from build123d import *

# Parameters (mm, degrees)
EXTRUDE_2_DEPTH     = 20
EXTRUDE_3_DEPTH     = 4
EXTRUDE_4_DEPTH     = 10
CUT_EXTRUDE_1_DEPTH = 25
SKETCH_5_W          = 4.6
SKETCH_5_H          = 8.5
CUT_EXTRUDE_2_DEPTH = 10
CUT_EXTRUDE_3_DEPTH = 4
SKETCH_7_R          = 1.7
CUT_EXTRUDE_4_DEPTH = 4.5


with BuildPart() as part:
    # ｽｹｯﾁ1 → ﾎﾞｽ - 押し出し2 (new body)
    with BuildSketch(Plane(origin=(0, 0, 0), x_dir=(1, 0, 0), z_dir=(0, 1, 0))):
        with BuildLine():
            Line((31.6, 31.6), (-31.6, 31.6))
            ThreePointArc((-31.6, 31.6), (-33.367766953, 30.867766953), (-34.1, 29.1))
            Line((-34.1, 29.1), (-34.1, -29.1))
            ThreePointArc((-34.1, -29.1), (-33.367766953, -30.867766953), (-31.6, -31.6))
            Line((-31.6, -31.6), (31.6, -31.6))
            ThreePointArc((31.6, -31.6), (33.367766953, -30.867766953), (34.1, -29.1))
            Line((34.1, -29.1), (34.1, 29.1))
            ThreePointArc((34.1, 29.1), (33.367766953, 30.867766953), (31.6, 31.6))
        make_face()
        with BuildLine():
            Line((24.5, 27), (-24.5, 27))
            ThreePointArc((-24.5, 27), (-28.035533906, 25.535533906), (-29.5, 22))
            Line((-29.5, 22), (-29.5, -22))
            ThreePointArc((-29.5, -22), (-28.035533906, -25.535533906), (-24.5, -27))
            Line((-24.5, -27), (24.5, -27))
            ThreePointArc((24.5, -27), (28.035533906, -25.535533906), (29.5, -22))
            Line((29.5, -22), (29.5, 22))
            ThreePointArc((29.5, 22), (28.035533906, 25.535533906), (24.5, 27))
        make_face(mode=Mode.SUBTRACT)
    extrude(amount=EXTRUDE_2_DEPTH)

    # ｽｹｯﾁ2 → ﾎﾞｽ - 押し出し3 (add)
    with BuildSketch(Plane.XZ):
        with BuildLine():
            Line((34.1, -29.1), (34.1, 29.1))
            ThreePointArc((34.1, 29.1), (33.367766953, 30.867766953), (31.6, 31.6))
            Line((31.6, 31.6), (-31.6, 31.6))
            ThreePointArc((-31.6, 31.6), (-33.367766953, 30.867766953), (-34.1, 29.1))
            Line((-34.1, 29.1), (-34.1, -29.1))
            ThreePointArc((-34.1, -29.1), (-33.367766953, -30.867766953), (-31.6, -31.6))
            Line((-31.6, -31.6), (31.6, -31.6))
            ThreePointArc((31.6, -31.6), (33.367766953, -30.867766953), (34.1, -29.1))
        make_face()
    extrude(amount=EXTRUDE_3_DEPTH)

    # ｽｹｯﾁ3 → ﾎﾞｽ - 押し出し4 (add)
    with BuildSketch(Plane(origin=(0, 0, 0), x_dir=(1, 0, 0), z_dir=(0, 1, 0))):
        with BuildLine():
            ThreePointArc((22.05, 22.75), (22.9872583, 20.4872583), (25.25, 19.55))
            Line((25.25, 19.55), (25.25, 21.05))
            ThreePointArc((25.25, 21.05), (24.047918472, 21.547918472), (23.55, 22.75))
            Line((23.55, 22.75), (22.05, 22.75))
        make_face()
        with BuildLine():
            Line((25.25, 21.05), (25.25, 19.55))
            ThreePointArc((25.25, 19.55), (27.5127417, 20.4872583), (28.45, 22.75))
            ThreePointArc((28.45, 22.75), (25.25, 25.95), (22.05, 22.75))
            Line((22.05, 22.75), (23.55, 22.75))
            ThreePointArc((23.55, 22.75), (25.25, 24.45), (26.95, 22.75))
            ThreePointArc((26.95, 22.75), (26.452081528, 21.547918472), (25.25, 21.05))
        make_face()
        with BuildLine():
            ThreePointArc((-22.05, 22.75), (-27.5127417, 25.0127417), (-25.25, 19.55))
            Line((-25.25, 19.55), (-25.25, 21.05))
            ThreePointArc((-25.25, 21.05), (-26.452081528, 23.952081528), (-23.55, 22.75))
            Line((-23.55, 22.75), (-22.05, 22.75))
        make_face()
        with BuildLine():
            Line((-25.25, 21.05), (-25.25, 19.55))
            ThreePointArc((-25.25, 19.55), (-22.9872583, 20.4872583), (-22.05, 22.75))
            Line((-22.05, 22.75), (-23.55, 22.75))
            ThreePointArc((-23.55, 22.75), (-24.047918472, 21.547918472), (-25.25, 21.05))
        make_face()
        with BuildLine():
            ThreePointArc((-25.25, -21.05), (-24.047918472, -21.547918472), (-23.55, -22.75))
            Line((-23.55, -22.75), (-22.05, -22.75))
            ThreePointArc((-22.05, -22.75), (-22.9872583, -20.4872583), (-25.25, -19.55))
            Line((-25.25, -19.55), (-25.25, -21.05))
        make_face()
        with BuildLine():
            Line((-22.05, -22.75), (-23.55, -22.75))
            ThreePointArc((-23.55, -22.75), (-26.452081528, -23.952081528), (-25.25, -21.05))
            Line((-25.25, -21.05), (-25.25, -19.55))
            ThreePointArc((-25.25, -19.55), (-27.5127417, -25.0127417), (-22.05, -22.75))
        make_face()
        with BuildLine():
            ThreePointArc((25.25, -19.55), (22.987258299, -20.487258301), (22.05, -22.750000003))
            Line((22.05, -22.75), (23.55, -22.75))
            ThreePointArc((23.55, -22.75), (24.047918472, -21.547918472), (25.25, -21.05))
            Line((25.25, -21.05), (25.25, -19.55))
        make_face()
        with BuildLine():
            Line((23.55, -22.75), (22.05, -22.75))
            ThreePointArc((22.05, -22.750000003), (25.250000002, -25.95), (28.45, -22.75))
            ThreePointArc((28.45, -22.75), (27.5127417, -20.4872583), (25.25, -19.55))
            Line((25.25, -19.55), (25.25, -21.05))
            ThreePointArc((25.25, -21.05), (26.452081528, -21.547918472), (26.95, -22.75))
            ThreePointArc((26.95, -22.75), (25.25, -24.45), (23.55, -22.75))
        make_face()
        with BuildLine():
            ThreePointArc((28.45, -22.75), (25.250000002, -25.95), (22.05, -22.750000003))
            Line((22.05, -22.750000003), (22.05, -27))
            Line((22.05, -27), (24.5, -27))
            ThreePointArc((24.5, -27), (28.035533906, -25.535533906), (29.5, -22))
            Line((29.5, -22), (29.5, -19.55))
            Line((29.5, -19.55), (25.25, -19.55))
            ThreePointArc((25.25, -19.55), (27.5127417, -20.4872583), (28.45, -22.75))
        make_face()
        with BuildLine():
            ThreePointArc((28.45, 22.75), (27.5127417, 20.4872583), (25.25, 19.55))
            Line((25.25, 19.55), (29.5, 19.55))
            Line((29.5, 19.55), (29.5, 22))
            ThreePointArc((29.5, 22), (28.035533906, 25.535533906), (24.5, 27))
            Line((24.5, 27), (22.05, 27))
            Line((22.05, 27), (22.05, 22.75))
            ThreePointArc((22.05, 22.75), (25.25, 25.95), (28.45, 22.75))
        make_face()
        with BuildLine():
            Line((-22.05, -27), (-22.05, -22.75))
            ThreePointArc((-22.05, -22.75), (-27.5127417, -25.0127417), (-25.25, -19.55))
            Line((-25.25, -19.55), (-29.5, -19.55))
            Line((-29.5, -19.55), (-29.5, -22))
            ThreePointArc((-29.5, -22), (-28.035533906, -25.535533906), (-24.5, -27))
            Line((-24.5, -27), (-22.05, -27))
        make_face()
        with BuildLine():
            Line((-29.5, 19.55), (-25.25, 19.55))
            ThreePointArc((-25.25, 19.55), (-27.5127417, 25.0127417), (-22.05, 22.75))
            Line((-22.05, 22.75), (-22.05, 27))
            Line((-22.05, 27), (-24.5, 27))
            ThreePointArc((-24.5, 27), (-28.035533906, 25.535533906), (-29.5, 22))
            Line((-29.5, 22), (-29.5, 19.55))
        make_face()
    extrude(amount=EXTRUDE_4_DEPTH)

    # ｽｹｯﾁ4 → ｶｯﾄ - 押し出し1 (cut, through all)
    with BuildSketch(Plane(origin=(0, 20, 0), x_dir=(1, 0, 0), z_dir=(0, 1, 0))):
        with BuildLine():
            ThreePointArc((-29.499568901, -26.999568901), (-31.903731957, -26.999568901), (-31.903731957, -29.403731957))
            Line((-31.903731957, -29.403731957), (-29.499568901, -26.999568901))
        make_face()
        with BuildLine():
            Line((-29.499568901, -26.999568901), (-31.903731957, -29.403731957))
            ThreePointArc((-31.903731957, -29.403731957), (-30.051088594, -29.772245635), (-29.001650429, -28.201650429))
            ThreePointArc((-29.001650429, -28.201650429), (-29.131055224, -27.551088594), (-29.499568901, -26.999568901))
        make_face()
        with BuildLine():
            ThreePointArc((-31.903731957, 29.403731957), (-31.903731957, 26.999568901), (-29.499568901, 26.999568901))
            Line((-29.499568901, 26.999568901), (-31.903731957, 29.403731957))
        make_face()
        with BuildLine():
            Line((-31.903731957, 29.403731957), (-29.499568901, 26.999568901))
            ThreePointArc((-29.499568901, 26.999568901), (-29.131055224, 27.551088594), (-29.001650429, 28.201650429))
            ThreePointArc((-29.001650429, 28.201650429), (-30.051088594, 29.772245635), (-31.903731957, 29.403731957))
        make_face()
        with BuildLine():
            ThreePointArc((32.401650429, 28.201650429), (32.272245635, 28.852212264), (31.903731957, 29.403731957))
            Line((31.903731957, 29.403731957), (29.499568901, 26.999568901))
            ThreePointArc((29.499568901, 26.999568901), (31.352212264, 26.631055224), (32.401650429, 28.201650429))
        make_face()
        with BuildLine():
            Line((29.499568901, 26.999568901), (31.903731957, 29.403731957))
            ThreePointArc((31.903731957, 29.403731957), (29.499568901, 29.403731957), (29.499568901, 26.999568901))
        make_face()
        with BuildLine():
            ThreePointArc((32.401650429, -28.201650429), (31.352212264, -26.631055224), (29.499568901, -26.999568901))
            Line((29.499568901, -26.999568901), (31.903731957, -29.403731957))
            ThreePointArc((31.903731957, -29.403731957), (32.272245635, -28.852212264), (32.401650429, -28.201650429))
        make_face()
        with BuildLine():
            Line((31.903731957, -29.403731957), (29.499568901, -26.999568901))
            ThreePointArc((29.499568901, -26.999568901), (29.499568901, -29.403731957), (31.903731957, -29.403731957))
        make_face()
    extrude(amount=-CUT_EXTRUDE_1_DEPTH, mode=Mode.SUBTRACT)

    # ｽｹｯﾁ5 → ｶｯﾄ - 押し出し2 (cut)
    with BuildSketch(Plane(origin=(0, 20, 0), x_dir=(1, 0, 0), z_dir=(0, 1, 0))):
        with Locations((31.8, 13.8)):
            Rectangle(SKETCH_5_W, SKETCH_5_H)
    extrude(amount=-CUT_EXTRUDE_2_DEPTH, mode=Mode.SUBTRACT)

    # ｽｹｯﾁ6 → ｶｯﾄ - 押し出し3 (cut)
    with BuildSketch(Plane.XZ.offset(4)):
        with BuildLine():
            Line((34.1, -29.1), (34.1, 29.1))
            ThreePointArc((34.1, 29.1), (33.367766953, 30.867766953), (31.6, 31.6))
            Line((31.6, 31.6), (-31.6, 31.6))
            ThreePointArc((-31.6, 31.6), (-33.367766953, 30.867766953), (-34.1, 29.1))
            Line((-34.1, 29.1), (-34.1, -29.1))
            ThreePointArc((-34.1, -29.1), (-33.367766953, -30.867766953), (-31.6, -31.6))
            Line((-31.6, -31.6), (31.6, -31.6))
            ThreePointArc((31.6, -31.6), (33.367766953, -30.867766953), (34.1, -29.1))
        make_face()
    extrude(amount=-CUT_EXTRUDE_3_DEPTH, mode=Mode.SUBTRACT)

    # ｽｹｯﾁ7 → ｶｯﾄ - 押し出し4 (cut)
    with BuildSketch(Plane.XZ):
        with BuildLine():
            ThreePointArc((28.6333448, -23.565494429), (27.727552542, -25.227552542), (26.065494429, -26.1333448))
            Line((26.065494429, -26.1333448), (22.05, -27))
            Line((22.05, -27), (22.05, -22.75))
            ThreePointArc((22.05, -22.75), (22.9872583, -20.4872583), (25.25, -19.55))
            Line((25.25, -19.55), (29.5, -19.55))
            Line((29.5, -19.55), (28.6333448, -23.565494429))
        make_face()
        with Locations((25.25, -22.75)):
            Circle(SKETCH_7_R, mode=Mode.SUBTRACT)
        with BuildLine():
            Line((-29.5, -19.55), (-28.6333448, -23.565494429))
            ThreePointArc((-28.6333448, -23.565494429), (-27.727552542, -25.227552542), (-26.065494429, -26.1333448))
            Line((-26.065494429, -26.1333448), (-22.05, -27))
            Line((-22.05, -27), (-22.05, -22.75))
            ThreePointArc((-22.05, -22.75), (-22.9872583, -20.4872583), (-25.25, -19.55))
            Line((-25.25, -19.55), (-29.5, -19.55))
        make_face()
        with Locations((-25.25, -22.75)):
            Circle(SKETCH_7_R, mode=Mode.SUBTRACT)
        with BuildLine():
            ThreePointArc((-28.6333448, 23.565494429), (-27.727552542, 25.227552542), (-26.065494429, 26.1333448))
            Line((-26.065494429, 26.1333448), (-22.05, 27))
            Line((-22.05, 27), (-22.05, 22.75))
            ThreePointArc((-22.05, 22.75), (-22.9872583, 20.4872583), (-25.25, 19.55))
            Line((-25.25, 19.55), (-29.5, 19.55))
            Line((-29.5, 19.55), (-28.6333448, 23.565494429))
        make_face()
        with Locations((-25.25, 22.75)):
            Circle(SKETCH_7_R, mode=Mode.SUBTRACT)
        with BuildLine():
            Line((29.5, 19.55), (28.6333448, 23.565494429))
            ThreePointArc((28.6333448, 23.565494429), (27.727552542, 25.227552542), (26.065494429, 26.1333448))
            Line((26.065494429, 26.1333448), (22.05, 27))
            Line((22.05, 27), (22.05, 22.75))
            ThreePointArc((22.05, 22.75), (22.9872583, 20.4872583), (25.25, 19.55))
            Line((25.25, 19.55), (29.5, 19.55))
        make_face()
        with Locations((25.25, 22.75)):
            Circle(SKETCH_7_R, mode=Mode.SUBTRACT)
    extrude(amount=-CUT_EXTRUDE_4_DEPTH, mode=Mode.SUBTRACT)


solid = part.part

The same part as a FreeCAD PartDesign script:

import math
import FreeCAD as App
import Part
import Sketcher
from FreeCAD import Vector
Q = App.Units.Quantity

doc = App.newDocument("Part")
params = doc.addObject("Spreadsheet::Sheet", "Params")
for row, (alias, value) in enumerate([
    ("sketch1_radius", "5 mm"),
    ("sketch1_radius2", "2.5 mm"),
    ("sketch1_width", "49 mm"),
    ("sketch1_height", "44 mm"),
    ("sketch1_width2", "63.2 mm"),
    ("pad1_length", "20 mm"),
    ("sketch2_radius", "2.5 mm"),
    ("sketch2_width", "63.2 mm"),
    ("sketch2_height", "58.2 mm"),
    ("pad2_length", "4 mm"),
    ("sketch3_radius", "5 mm"),
    ("sketch3_radius2", "3.2 mm"),
    ("sketch3_radius3", "1.7 mm"),
    ("sketch3_width", "4.25 mm"),
    ("pad3_length", "10 mm"),
    ("sketch4_radius", "1.7 mm"),
    ("sketch5_width", "4.6 mm"),
    ("sketch5_height", "8.5 mm"),
    ("pocket2_length", "10 mm"),
    ("sketch6_radius", "2.5 mm"),
    ("sketch6_width", "63.2 mm"),
    ("sketch6_height", "58.2 mm"),
    ("pocket3_length", "4 mm"),
    ("sketch7_diameter", "3.4 mm"),
    ("sketch7_radius", "3.2 mm"),
    ("sketch7_radius2", "3.35 mm"),
    ("sketch7_width", "4.25 mm"),
    ("pocket4_length", "4.5 mm"),
], start=1):
    params.set(f"A{row}", alias)
    params.set(f"B{row}", "=" + value)
    params.setAlias(f"B{row}", alias)

body = doc.addObject("PartDesign::Body", "Body")

sketch1 = body.newObject("Sketcher::SketchObject", "Sketch")
sketch1.AttachmentSupport = (doc.getObject("XZ_Plane"), [""])
sketch1.MapMode = "FlatFace"
sketch1.addGeometry(Part.LineSegment(Vector(31.6, -31.6, 0), Vector(-31.6, -31.6, 0)), False)
sketch1.addGeometry(Part.ArcOfCircle(Part.Circle(Vector(-31.6, -29.1, 0), Vector(0, 0, 1), 2.5), math.radians(180), math.radians(270)), False)
sketch1.addGeometry(Part.LineSegment(Vector(-34.1, -29.1, 0), Vector(-34.1, 29.1, 0)), False)
sketch1.addGeometry(Part.ArcOfCircle(Part.Circle(Vector(-31.6, 29.1, 0), Vector(0, 0, 1), 2.5), math.radians(90), math.radians(180)), False)
sketch1.addGeometry(Part.LineSegment(Vector(-31.6, 31.6, 0), Vector(31.6, 31.6, 0)), False)
sketch1.addGeometry(Part.ArcOfCircle(Part.Circle(Vector(31.6, 29.1, 0), Vector(0, 0, 1), 2.5), math.radians(0), math.radians(90)), False)
sketch1.addGeometry(Part.LineSegment(Vector(34.1, 29.1, 0), Vector(34.1, -29.1, 0)), False)
sketch1.addGeometry(Part.ArcOfCircle(Part.Circle(Vector(31.6, -29.1, 0), Vector(0, 0, 1), 2.5), math.radians(-90), math.radians(0)), False)
sketch1.addGeometry(Part.LineSegment(Vector(-24.5, -27, 0), Vector(24.5, -27, 0)), False)
sketch1.addGeometry(Part.ArcOfCircle(Part.Circle(Vector(24.5, -22, 0), Vector(0, 0, 1), 5), math.radians(-90), math.radians(0)), False)
sketch1.addGeometry(Part.LineSegment(Vector(29.5, -22, 0), Vector(29.5, 22, 0)), False)
sketch1.addGeometry(Part.ArcOfCircle(Part.Circle(Vector(24.5, 22, 0), Vector(0, 0, 1), 5), math.radians(0), math.radians(90)), False)
sketch1.addGeometry(Part.LineSegment(Vector(24.5, 27, 0), Vector(-24.5, 27, 0)), False)
sketch1.addGeometry(Part.ArcOfCircle(Part.Circle(Vector(-24.5, 22, 0), Vector(0, 0, 1), 5), math.radians(90), math.radians(180)), False)
sketch1.addGeometry(Part.LineSegment(Vector(-29.5, 22, 0), Vector(-29.5, -22, 0)), False)
sketch1.addGeometry(Part.ArcOfCircle(Part.Circle(Vector(-24.5, -22, 0), Vector(0, 0, 1), 5), math.radians(180), math.radians(270)), False)
sketch1.addConstraint(Sketcher.Constraint("Tangent", 0, 2, 1, 2))
sketch1.addConstraint(Sketcher.Constraint("Tangent", 1, 1, 2, 1))
sketch1.addConstraint(Sketcher.Constraint("Tangent", 2, 2, 3, 2))
sketch1.addConstraint(Sketcher.Constraint("Tangent", 3, 1, 4, 1))
sketch1.addConstraint(Sketcher.Constraint("Tangent", 4, 2, 5, 2))
sketch1.addConstraint(Sketcher.Constraint("Tangent", 5, 1, 6, 1))
sketch1.addConstraint(Sketcher.Constraint("Tangent", 6, 2, 7, 2))
sketch1.addConstraint(Sketcher.Constraint("Tangent", 7, 1, 0, 1))
sketch1.addConstraint(Sketcher.Constraint("Tangent", 8, 2, 9, 1))
sketch1.addConstraint(Sketcher.Constraint("Tangent", 9, 2, 10, 1))
sketch1.addConstraint(Sketcher.Constraint("Tangent", 10, 2, 11, 1))
sketch1.addConstraint(Sketcher.Constraint("Tangent", 11, 2, 12, 1))
sketch1.addConstraint(Sketcher.Constraint("Tangent", 12, 2, 13, 1))
sketch1.addConstraint(Sketcher.Constraint("Tangent", 13, 2, 14, 1))
sketch1.addConstraint(Sketcher.Constraint("Tangent", 14, 2, 15, 1))
sketch1.addConstraint(Sketcher.Constraint("Tangent", 15, 2, 8, 1))
sketch1.addConstraint(Sketcher.Constraint("Horizontal", 0))
sketch1.addConstraint(Sketcher.Constraint("Vertical", 2))
sketch1.addConstraint(Sketcher.Constraint("Horizontal", 4))
sketch1.addConstraint(Sketcher.Constraint("Vertical", 6))
sketch1.addConstraint(Sketcher.Constraint("Horizontal", 8))
sketch1.addConstraint(Sketcher.Constraint("Vertical", 10))
sketch1.addConstraint(Sketcher.Constraint("Horizontal", 12))
sketch1.addConstraint(Sketcher.Constraint("Vertical", 14))
sketch1.addConstraint(Sketcher.Constraint("Equal", 1, 3))
sketch1.addConstraint(Sketcher.Constraint("Equal", 3, 5))
sketch1.addConstraint(Sketcher.Constraint("Equal", 5, 7))
sketch1.addConstraint(Sketcher.Constraint("Equal", 9, 11))
sketch1.addConstraint(Sketcher.Constraint("Equal", 11, 13))
sketch1.addConstraint(Sketcher.Constraint("Equal", 13, 15))
sketch1.addConstraint(Sketcher.Constraint("Symmetric", 1, 3, 5, 3, -1, 1))
sketch1.addConstraint(Sketcher.Constraint("Symmetric", 9, 3, 13, 3, -1, 1))
sketch1.addConstraint(Sketcher.Constraint("Radius", 9, Q("5 mm")))
sketch1.addConstraint(Sketcher.Constraint("Radius", 1, Q("2.5 mm")))
sketch1.addConstraint(Sketcher.Constraint("DistanceX", 8, 1, 8, 2, Q("49 mm")))
sketch1.addConstraint(Sketcher.Constraint("DistanceY", 10, 1, 10, 2, Q("44 mm")))
sketch1.addConstraint(Sketcher.Constraint("DistanceX", 0, 2, 0, 1, Q("63.2 mm")))
sketch1.addConstraint(Sketcher.Constraint("DistanceY", 2, 1, 2, 2, Q("58.2 mm")))
sketch1.setExpression("Constraints[32]", "Params.sketch1_radius")
sketch1.setExpression("Constraints[33]", "Params.sketch1_radius2")
sketch1.setExpression("Constraints[34]", "Params.sketch1_width")
sketch1.setExpression("Constraints[35]", "Params.sketch1_height")
sketch1.setExpression("Constraints[36]", "Params.sketch1_width2")
pad1 = body.newObject("PartDesign::Pad", "Pad")
pad1.Profile = sketch1
pad1.setExpression("Length", "Params.pad1_length")
pad1.Reversed = True

sketch2 = body.newObject("Sketcher::SketchObject", "Sketch001")
sketch2.AttachmentSupport = (doc.getObject("XZ_Plane"), [""])
sketch2.MapMode = "FlatFace"
sketch2.addGeometry(Part.LineSegment(Vector(34.1, -29.1, 0), Vector(34.1, 29.1, 0)), False)
sketch2.addGeometry(Part.ArcOfCircle(Part.Circle(Vector(31.6, 29.1, 0), Vector(0, 0, 1), 2.5), math.radians(0), math.radians(90)), False)
sketch2.addGeometry(Part.LineSegment(Vector(31.6, 31.6, 0), Vector(-31.6, 31.6, 0)), False)
sketch2.addGeometry(Part.ArcOfCircle(Part.Circle(Vector(-31.6, 29.1, 0), Vector(0, 0, 1), 2.5), math.radians(90), math.radians(180)), False)
sketch2.addGeometry(Part.LineSegment(Vector(-34.1, 29.1, 0), Vector(-34.1, -29.1, 0)), False)
sketch2.addGeometry(Part.ArcOfCircle(Part.Circle(Vector(-31.6, -29.1, 0), Vector(0, 0, 1), 2.5), math.radians(180), math.radians(270)), False)
sketch2.addGeometry(Part.LineSegment(Vector(-31.6, -31.6, 0), Vector(31.6, -31.6, 0)), False)
sketch2.addGeometry(Part.ArcOfCircle(Part.Circle(Vector(31.6, -29.1, 0), Vector(0, 0, 1), 2.5), math.radians(-90), math.radians(0)), False)
sketch2.addConstraint(Sketcher.Constraint("Tangent", 0, 2, 1, 1))
sketch2.addConstraint(Sketcher.Constraint("Tangent", 1, 2, 2, 1))
sketch2.addConstraint(Sketcher.Constraint("Tangent", 2, 2, 3, 1))
sketch2.addConstraint(Sketcher.Constraint("Tangent", 3, 2, 4, 1))
sketch2.addConstraint(Sketcher.Constraint("Tangent", 4, 2, 5, 1))
sketch2.addConstraint(Sketcher.Constraint("Tangent", 5, 2, 6, 1))
sketch2.addConstraint(Sketcher.Constraint("Tangent", 6, 2, 7, 1))
sketch2.addConstraint(Sketcher.Constraint("Tangent", 7, 2, 0, 1))
sketch2.addConstraint(Sketcher.Constraint("Vertical", 0))
sketch2.addConstraint(Sketcher.Constraint("Horizontal", 2))
sketch2.addConstraint(Sketcher.Constraint("Vertical", 4))
sketch2.addConstraint(Sketcher.Constraint("Horizontal", 6))
sketch2.addConstraint(Sketcher.Constraint("Equal", 1, 3))
sketch2.addConstraint(Sketcher.Constraint("Equal", 3, 5))
sketch2.addConstraint(Sketcher.Constraint("Equal", 5, 7))
sketch2.addConstraint(Sketcher.Constraint("Symmetric", 1, 3, 5, 3, -1, 1))
sketch2.addConstraint(Sketcher.Constraint("Radius", 1, Q("2.5 mm")))
sketch2.addConstraint(Sketcher.Constraint("DistanceX", 2, 2, 2, 1, Q("63.2 mm")))
sketch2.addConstraint(Sketcher.Constraint("DistanceY", 0, 1, 0, 2, Q("58.2 mm")))
sketch2.setExpression("Constraints[16]", "Params.sketch2_radius")
sketch2.setExpression("Constraints[17]", "Params.sketch2_width")
sketch2.setExpression("Constraints[18]", "Params.sketch2_height")
pad2 = body.newObject("PartDesign::Pad", "Pad001")
pad2.Profile = sketch2
pad2.setExpression("Length", "Params.pad2_length")

sketch3 = body.newObject("Sketcher::SketchObject", "Sketch002")
sketch3.AttachmentSupport = (doc.getObject("XZ_Plane"), [""])
sketch3.MapMode = "FlatFace"
sketch3.addGeometry(Part.ArcOfCircle(Part.Circle(Vector(25.2, -22.7, 0), Vector(0, 0, 1), 3.2), math.radians(90), math.radians(180)), False)
sketch3.addGeometry(Part.LineSegment(Vector(25.2, -19.6, 0), Vector(29.5, -19.6, 0)), False)
sketch3.addGeometry(Part.LineSegment(Vector(29.5, -19.6, 0), Vector(29.5, -22, 0)), False)
sketch3.addGeometry(Part.ArcOfCircle(Part.Circle(Vector(24.5, -22, 0), Vector(0, 0, 1), 5), math.radians(-90), math.radians(0)), False)
sketch3.addGeometry(Part.LineSegment(Vector(24.5, -27, 0), Vector(22.1, -27, 0)), False)
sketch3.addGeometry(Part.LineSegment(Vector(22.1, -27, 0), Vector(22.1, -22.8, 0)), False)
sketch3.addGeometry(Part.ArcOfCircle(Part.Circle(Vector(25.2, -22.8, 0), Vector(0, 0, 1), 1.7), math.radians(90), math.radians(180)), False)
sketch3.addGeometry(Part.ArcOfCircle(Part.Circle(Vector(25.2, -22.8, 0), Vector(0, 0, 1), 1.7), math.radians(180), math.radians(360)), False)
sketch3.addGeometry(Part.ArcOfCircle(Part.Circle(Vector(25.2, -22.8, 0), Vector(0, 0, 1), 1.7), math.radians(0), math.radians(90)), False)
sketch3.addGeometry(Part.ArcOfCircle(Part.Circle(Vector(-25.2, -22.7, 0), Vector(0, 0, 1), 3.2), math.radians(0), math.radians(90)), False)
sketch3.addGeometry(Part.LineSegment(Vector(-22.1, -22.8, 0), Vector(-22.1, -27, 0)), False)
sketch3.addGeometry(Part.LineSegment(Vector(-22.1, -27, 0), Vector(-24.5, -27, 0)), False)
sketch3.addGeometry(Part.ArcOfCircle(Part.Circle(Vector(-24.5, -22, 0), Vector(0, 0, 1), 5), math.radians(180), math.radians(270)), False)
sketch3.addGeometry(Part.LineSegment(Vector(-29.5, -22, 0), Vector(-29.5, -19.6, 0)), False)
sketch3.addGeometry(Part.LineSegment(Vector(-29.5, -19.6, 0), Vector(-25.2, -19.6, 0)), False)
sketch3.addGeometry(Part.ArcOfCircle(Part.Circle(Vector(-25.2, -22.8, 0), Vector(0, 0, 1), 1.7), math.radians(90), math.radians(360)), False)
sketch3.addGeometry(Part.ArcOfCircle(Part.Circle(Vector(-25.2, -22.8, 0), Vector(0, 0, 1), 1.7), math.radians(0), math.radians(90)), False)
sketch3.addGeometry(Part.ArcOfCircle(Part.Circle(Vector(-25.2, 22.7, 0), Vector(0, 0, 1), 3.2), math.radians(-90), math.radians(0)), False)
sketch3.addGeometry(Part.LineSegment(Vector(-25.2, 19.6, 0), Vector(-29.5, 19.6, 0)), False)
sketch3.addGeometry(Part.LineSegment(Vector(-29.5, 19.6, 0), Vector(-29.5, 22, 0)), False)
sketch3.addGeometry(Part.ArcOfCircle(Part.Circle(Vector(-24.5, 22, 0), Vector(0, 0, 1), 5), math.radians(90), math.radians(180)), False)
sketch3.addGeometry(Part.LineSegment(Vector(-24.5, 27, 0), Vector(-22.1, 27, 0)), False)
sketch3.addGeometry(Part.LineSegment(Vector(-22.1, 27, 0), Vector(-22.1, 22.8, 0)), False)
sketch3.addGeometry(Part.ArcOfCircle(Part.Circle(Vector(-25.2, 22.8, 0), Vector(0, 0, 1), 1.7), math.radians(-90), math.radians(0)), False)
sketch3.addGeometry(Part.ArcOfCircle(Part.Circle(Vector(-25.2, 22.8, 0), Vector(0, 0, 1), 1.7), math.radians(0), math.radians(270)), False)
sketch3.addGeometry(Part.ArcOfCircle(Part.Circle(Vector(25.2, 22.7, 0), Vector(0, 0, 1), 3.2), math.radians(180), math.radians(270)), False)
sketch3.addGeometry(Part.LineSegment(Vector(22.1, 22.8, 0), Vector(22.1, 27, 0)), False)
sketch3.addGeometry(Part.LineSegment(Vector(22.1, 27, 0), Vector(24.5, 27, 0)), False)
sketch3.addGeometry(Part.ArcOfCircle(Part.Circle(Vector(24.5, 22, 0), Vector(0, 0, 1), 5), math.radians(0), math.radians(90)), False)
sketch3.addGeometry(Part.LineSegment(Vector(29.5, 22, 0), Vector(29.5, 19.6, 0)), False)
sketch3.addGeometry(Part.LineSegment(Vector(29.5, 19.6, 0), Vector(25.2, 19.6, 0)), False)
sketch3.addGeometry(Part.ArcOfCircle(Part.Circle(Vector(25.2, 22.8, 0), Vector(0, 0, 1), 1.7), math.radians(180), math.radians(270)), False)
sketch3.addGeometry(Part.ArcOfCircle(Part.Circle(Vector(25.2, 22.8, 0), Vector(0, 0, 1), 1.7), math.radians(-90), math.radians(0)), False)
sketch3.addGeometry(Part.ArcOfCircle(Part.Circle(Vector(25.2, 22.8, 0), Vector(0, 0, 1), 1.7), math.radians(0), math.radians(180)), False)
sketch3.addConstraint(Sketcher.Constraint("Tangent", 0, 1, 1, 1))
sketch3.addConstraint(Sketcher.Constraint("Coincident", 1, 2, 2, 1))
sketch3.addConstraint(Sketcher.Constraint("Tangent", 2, 2, 3, 2))
sketch3.addConstraint(Sketcher.Constraint("Tangent", 3, 1, 4, 1))
sketch3.addConstraint(Sketcher.Constraint("Coincident", 4, 2, 5, 1))
sketch3.addConstraint(Sketcher.Constraint("Tangent", 5, 2, 0, 2))
sketch3.addConstraint(Sketcher.Constraint("Tangent", 6, 2, 7, 1))
sketch3.addConstraint(Sketcher.Constraint("Tangent", 7, 2, 8, 1))
sketch3.addConstraint(Sketcher.Constraint("Tangent", 8, 2, 6, 1))
sketch3.addConstraint(Sketcher.Constraint("Tangent", 9, 1, 10, 1))
sketch3.addConstraint(Sketcher.Constraint("Coincident", 10, 2, 11, 1))
sketch3.addConstraint(Sketcher.Constraint("Tangent", 11, 2, 12, 2))
sketch3.addConstraint(Sketcher.Constraint("Tangent", 12, 1, 13, 1))
sketch3.addConstraint(Sketcher.Constraint("Coincident", 13, 2, 14, 1))
sketch3.addConstraint(Sketcher.Constraint("Tangent", 14, 2, 9, 2))
sketch3.addConstraint(Sketcher.Constraint("Tangent", 15, 1, 16, 2))
sketch3.addConstraint(Sketcher.Constraint("Coincident", 16, 1, 15, 2))
sketch3.addConstraint(Sketcher.Constraint("Tangent", 17, 1, 18, 1))
sketch3.addConstraint(Sketcher.Constraint("Coincident", 18, 2, 19, 1))
sketch3.addConstraint(Sketcher.Constraint("Tangent", 19, 2, 20, 2))
sketch3.addConstraint(Sketcher.Constraint("Tangent", 20, 1, 21, 1))
sketch3.addConstraint(Sketcher.Constraint("Coincident", 21, 2, 22, 1))
sketch3.addConstraint(Sketcher.Constraint("Tangent", 22, 2, 17, 2))
sketch3.addConstraint(Sketcher.Constraint("Tangent", 23, 1, 24, 2))
sketch3.addConstraint(Sketcher.Constraint("Coincident", 24, 1, 23, 2))
sketch3.addConstraint(Sketcher.Constraint("Tangent", 25, 1, 26, 1))
sketch3.addConstraint(Sketcher.Constraint("Coincident", 26, 2, 27, 1))
sketch3.addConstraint(Sketcher.Constraint("Tangent", 27, 2, 28, 2))
sketch3.addConstraint(Sketcher.Constraint("Tangent", 28, 1, 29, 1))
sketch3.addConstraint(Sketcher.Constraint("Coincident", 29, 2, 30, 1))
sketch3.addConstraint(Sketcher.Constraint("Tangent", 30, 2, 25, 2))
sketch3.addConstraint(Sketcher.Constraint("Tangent", 31, 2, 32, 1))
sketch3.addConstraint(Sketcher.Constraint("Tangent", 32, 2, 33, 1))
sketch3.addConstraint(Sketcher.Constraint("Tangent", 33, 2, 31, 1))
sketch3.addConstraint(Sketcher.Constraint("Horizontal", 1))
sketch3.addConstraint(Sketcher.Constraint("Vertical", 2))
sketch3.addConstraint(Sketcher.Constraint("Horizontal", 4))
sketch3.addConstraint(Sketcher.Constraint("Vertical", 5))
sketch3.addConstraint(Sketcher.Constraint("Vertical", 10))
sketch3.addConstraint(Sketcher.Constraint("Horizontal", 11))
sketch3.addConstraint(Sketcher.Constraint("Vertical", 13))
sketch3.addConstraint(Sketcher.Constraint("Horizontal", 14))
sketch3.addConstraint(Sketcher.Constraint("Horizontal", 18))
sketch3.addConstraint(Sketcher.Constraint("Vertical", 19))
sketch3.addConstraint(Sketcher.Constraint("Horizontal", 21))
sketch3.addConstraint(Sketcher.Constraint("Vertical", 22))
sketch3.addConstraint(Sketcher.Constraint("Vertical", 26))
sketch3.addConstraint(Sketcher.Constraint("Horizontal", 27))
sketch3.addConstraint(Sketcher.Constraint("Vertical", 29))
sketch3.addConstraint(Sketcher.Constraint("Horizontal", 30))
sketch3.addConstraint(Sketcher.Constraint("Coincident", 6, 3, 0, 3))
sketch3.addConstraint(Sketcher.Constraint("Coincident", 15, 3, 9, 3))
sketch3.addConstraint(Sketcher.Constraint("Coincident", 23, 3, 17, 3))
sketch3.addConstraint(Sketcher.Constraint("Coincident", 31, 3, 25, 3))
sketch3.addConstraint(Sketcher.Constraint("Equal", 0, 9))
sketch3.addConstraint(Sketcher.Constraint("Equal", 3, 12))
sketch3.addConstraint(Sketcher.Constraint("Equal", 8, 15))
sketch3.addConstraint(Sketcher.Constraint("Equal", 9, 17))
sketch3.addConstraint(Sketcher.Constraint("Equal", 12, 20))
sketch3.addConstraint(Sketcher.Constraint("Equal", 16, 23))
sketch3.addConstraint(Sketcher.Constraint("Equal", 17, 25))
sketch3.addConstraint(Sketcher.Constraint("Equal", 20, 28))
sketch3.addConstraint(Sketcher.Constraint("Equal", 24, 31))
sketch3.addConstraint(Sketcher.Constraint("Symmetric", 0, 3, 17, 3, -1, 1))
sketch3.addConstraint(Sketcher.Constraint("Symmetric", 3, 3, 20, 3, -1, 1))
sketch3.addConstraint(Sketcher.Constraint("Symmetric", 9, 3, 25, 3, -1, 1))
sketch3.addConstraint(Sketcher.Constraint("Symmetric", 12, 3, 28, 3, -1, 1))
sketch3.addConstraint(Sketcher.Constraint("Symmetric", 0, 3, 9, 3, -2))
sketch3.addConstraint(Sketcher.Constraint("Symmetric", 3, 3, 12, 3, -2))
sketch3.addConstraint(Sketcher.Constraint("Horizontal", 5, 2, 6, 2))
sketch3.addConstraint(Sketcher.Constraint("Horizontal", 6, 2, 7, 2))
sketch3.addConstraint(Sketcher.Constraint("Horizontal", 9, 1, 16, 1))
sketch3.addConstraint(Sketcher.Constraint("Horizontal", 22, 2, 24, 1))
sketch3.addConstraint(Sketcher.Constraint("Horizontal", 25, 1, 32, 2))
sketch3.addConstraint(Sketcher.Constraint("Horizontal", 32, 2, 33, 2))
sketch3.addConstraint(Sketcher.Constraint("Vertical", 0, 1, 8, 2))
sketch3.addConstraint(Sketcher.Constraint("Vertical", 14, 2, 15, 1))
sketch3.addConstraint(Sketcher.Constraint("Vertical", 17, 1, 23, 1))
sketch3.addConstraint(Sketcher.Constraint("Vertical", 30, 2, 31, 2))
sketch3.addConstraint(Sketcher.Constraint("Equal", 27, 2))
sketch3.addConstraint(Sketcher.Constraint("Radius", 3, Q("5 mm")))
sketch3.addConstraint(Sketcher.Constraint("Radius", 0, Q("3.2 mm")))
sketch3.addConstraint(Sketcher.Constraint("Radius", 6, Q("1.7 mm")))
sketch3.addConstraint(Sketcher.Constraint("DistanceY", 3, 3, -1, 1, Q("22 mm")))
sketch3.addConstraint(Sketcher.Constraint("DistanceX", 12, 3, 3, 3, Q("49 mm")))
sketch3.addConstraint(Sketcher.Constraint("DistanceX", 1, 1, 1, 2, Q("4.25 mm")))
sketch3.setExpression("Constraints[80]", "Params.sketch3_radius")
sketch3.setExpression("Constraints[81]", "Params.sketch3_radius2")
sketch3.setExpression("Constraints[82]", "Params.sketch3_radius3")
sketch3.setExpression("Constraints[85]", "Params.sketch3_width")
pad3 = body.newObject("PartDesign::Pad", "Pad002")
pad3.Profile = sketch3
pad3.setExpression("Length", "Params.pad3_length")
pad3.Reversed = True

sketch4 = body.newObject("Sketcher::SketchObject", "Sketch003")
sketch4.AttachmentSupport = (doc.getObject("XZ_Plane"), [""])
sketch4.MapMode = "FlatFace"
sketch4.AttachmentOffset = App.Placement(Vector(0, 0, -20), App.Rotation())
sketch4.addGeometry(Part.ArcOfCircle(Part.Circle(Vector(-30.7, 28.2, 0), Vector(0, 0, 1), 1.7), math.radians(135), math.radians(315)), False)
sketch4.addGeometry(Part.ArcOfCircle(Part.Circle(Vector(-30.7, 28.2, 0), Vector(0, 0, 1), 1.7), math.radians(0), math.radians(135)), False)
sketch4.addGeometry(Part.ArcOfCircle(Part.Circle(Vector(-30.7, 28.2, 0), Vector(0, 0, 1), 1.7), math.radians(-45), math.radians(0)), False)
sketch4.addGeometry(Part.ArcOfCircle(Part.Circle(Vector(-30.7, -28.2, 0), Vector(0, 0, 1), 1.7), math.radians(45), math.radians(225)), False)
sketch4.addGeometry(Part.ArcOfCircle(Part.Circle(Vector(-30.7, -28.2, 0), Vector(0, 0, 1), 1.7), math.radians(0), math.radians(45)), False)
sketch4.addGeometry(Part.ArcOfCircle(Part.Circle(Vector(-30.7, -28.2, 0), Vector(0, 0, 1), 1.7), math.radians(-135), math.radians(0)), False)
sketch4.addGeometry(Part.ArcOfCircle(Part.Circle(Vector(30.7, -28.2, 0), Vector(0, 0, 1), 1.7), math.radians(-45), math.radians(0)), False)
sketch4.addGeometry(Part.ArcOfCircle(Part.Circle(Vector(30.7, -28.2, 0), Vector(0, 0, 1), 1.7), math.radians(135), math.radians(315)), False)
sketch4.addGeometry(Part.ArcOfCircle(Part.Circle(Vector(30.7, -28.2, 0), Vector(0, 0, 1), 1.7), math.radians(0), math.radians(135)), False)
sketch4.addGeometry(Part.ArcOfCircle(Part.Circle(Vector(30.7, 28.2, 0), Vector(0, 0, 1), 1.7), math.radians(-135), math.radians(0)), False)
sketch4.addGeometry(Part.ArcOfCircle(Part.Circle(Vector(30.7, 28.2, 0), Vector(0, 0, 1), 1.7), math.radians(45), math.radians(225)), False)
sketch4.addGeometry(Part.ArcOfCircle(Part.Circle(Vector(30.7, 28.2, 0), Vector(0, 0, 1), 1.7), math.radians(0), math.radians(45)), False)
sketch4.addConstraint(Sketcher.Constraint("Tangent", 0, 1, 1, 2))
sketch4.addConstraint(Sketcher.Constraint("Tangent", 1, 1, 2, 2))
sketch4.addConstraint(Sketcher.Constraint("Tangent", 2, 1, 0, 2))
sketch4.addConstraint(Sketcher.Constraint("Tangent", 3, 1, 4, 2))
sketch4.addConstraint(Sketcher.Constraint("Tangent", 4, 1, 5, 2))
sketch4.addConstraint(Sketcher.Constraint("Tangent", 5, 1, 3, 2))
sketch4.addConstraint(Sketcher.Constraint("Tangent", 6, 1, 7, 2))
sketch4.addConstraint(Sketcher.Constraint("Tangent", 7, 1, 8, 2))
sketch4.addConstraint(Sketcher.Constraint("Tangent", 8, 1, 6, 2))
sketch4.addConstraint(Sketcher.Constraint("Tangent", 9, 1, 10, 2))
sketch4.addConstraint(Sketcher.Constraint("Tangent", 10, 1, 11, 2))
sketch4.addConstraint(Sketcher.Constraint("Tangent", 11, 1, 9, 2))
sketch4.addConstraint(Sketcher.Constraint("Equal", 2, 3))
sketch4.addConstraint(Sketcher.Constraint("Equal", 5, 6))
sketch4.addConstraint(Sketcher.Constraint("Equal", 8, 9))
sketch4.addConstraint(Sketcher.Constraint("Symmetric", 0, 3, 6, 3, -1, 1))
sketch4.addConstraint(Sketcher.Constraint("Symmetric", 3, 3, 9, 3, -1, 1))
sketch4.addConstraint(Sketcher.Constraint("Symmetric", 3, 3, 6, 3, -2))
sketch4.addConstraint(Sketcher.Constraint("Horizontal", 11, 3, 1, 1))
sketch4.addConstraint(Sketcher.Constraint("Horizontal", 8, 3, 4, 1))
sketch4.addConstraint(Sketcher.Constraint("Horizontal", 5, 1, 6, 1))
sketch4.addConstraint(Sketcher.Constraint("Horizontal", 3, 1, 7, 1))
sketch4.addConstraint(Sketcher.Constraint("Horizontal", 4, 1, 8, 1))
sketch4.addConstraint(Sketcher.Constraint("Horizontal", 2, 1, 9, 1))
sketch4.addConstraint(Sketcher.Constraint("Horizontal", 0, 1, 10, 1))
sketch4.addConstraint(Sketcher.Constraint("Horizontal", 1, 1, 11, 1))
sketch4.addConstraint(Sketcher.Constraint("Vertical", 2, 1, 3, 1))
sketch4.addConstraint(Sketcher.Constraint("Vertical", 0, 1, 5, 1))
sketch4.addConstraint(Sketcher.Constraint("Radius", 0, Q("1.7 mm")))
sketch4.addConstraint(Sketcher.Constraint("DistanceY", 3, 3, 0, 3, Q("56.403301 mm")))
sketch4.addConstraint(Sketcher.Constraint("DistanceX", 3, 3, 6, 3, Q("61.403301 mm")))
sketch4.addConstraint(Sketcher.Constraint("DistanceY", 7, 1, 10, 1, Q("56.403301 mm")))
sketch4.addConstraint(Sketcher.Constraint("DistanceX", 0, 1, -1, 1, Q("31.903732 mm")))
sketch4.setExpression("Constraints[28]", "Params.sketch4_radius")
pocket1 = body.newObject("PartDesign::Pocket", "Pocket")
pocket1.Profile = sketch4
pocket1.Type = "ThroughAll"
pocket1.Reversed = True

sketch5 = body.newObject("Sketcher::SketchObject", "Sketch004")
sketch5.AttachmentSupport = (doc.getObject("XZ_Plane"), [""])
sketch5.MapMode = "FlatFace"
sketch5.AttachmentOffset = App.Placement(Vector(0, 0, -20), App.Rotation())
sketch5.addGeometry(Part.LineSegment(Vector(29.5, -18.1, 0), Vector(29.5, -9.6, 0)), False)
sketch5.addGeometry(Part.LineSegment(Vector(29.5, -9.6, 0), Vector(34.1, -9.6, 0)), False)
sketch5.addGeometry(Part.LineSegment(Vector(34.1, -9.6, 0), Vector(34.1, -18.1, 0)), False)
sketch5.addGeometry(Part.LineSegment(Vector(34.1, -18.1, 0), Vector(29.5, -18.1, 0)), False)
sketch5.addConstraint(Sketcher.Constraint("Coincident", 0, 2, 1, 1))
sketch5.addConstraint(Sketcher.Constraint("Coincident", 1, 2, 2, 1))
sketch5.addConstraint(Sketcher.Constraint("Coincident", 2, 2, 3, 1))
sketch5.addConstraint(Sketcher.Constraint("Coincident", 3, 2, 0, 1))
sketch5.addConstraint(Sketcher.Constraint("Vertical", 0))
sketch5.addConstraint(Sketcher.Constraint("Horizontal", 1))
sketch5.addConstraint(Sketcher.Constraint("Vertical", 2))
sketch5.addConstraint(Sketcher.Constraint("Horizontal", 3))
sketch5.addConstraint(Sketcher.Constraint("DistanceX", 1, 1, 1, 2, Q("4.6 mm")))
sketch5.addConstraint(Sketcher.Constraint("DistanceY", 0, 1, 0, 2, Q("8.5 mm")))
sketch5.addConstraint(Sketcher.Constraint("DistanceX", -1, 1, 0, 2, Q("29.5 mm")))
sketch5.addConstraint(Sketcher.Constraint("DistanceY", 0, 2, -1, 1, Q("9.55 mm")))
sketch5.setExpression("Constraints[8]", "Params.sketch5_width")
sketch5.setExpression("Constraints[9]", "Params.sketch5_height")
pocket2 = body.newObject("PartDesign::Pocket", "Pocket001")
pocket2.Profile = sketch5
pocket2.setExpression("Length", "Params.pocket2_length")
pocket2.Reversed = True

sketch6 = body.newObject("Sketcher::SketchObject", "Sketch005")
sketch6.AttachmentSupport = (doc.getObject("XZ_Plane"), [""])
sketch6.MapMode = "FlatFace"
sketch6.AttachmentOffset = App.Placement(Vector(0, 0, 4), App.Rotation())
sketch6.addGeometry(Part.LineSegment(Vector(34.1, -29.1, 0), Vector(34.1, 29.1, 0)), False)
sketch6.addGeometry(Part.ArcOfCircle(Part.Circle(Vector(31.6, 29.1, 0), Vector(0, 0, 1), 2.5), math.radians(0), math.radians(90)), False)
sketch6.addGeometry(Part.LineSegment(Vector(31.6, 31.6, 0), Vector(-31.6, 31.6, 0)), False)
sketch6.addGeometry(Part.ArcOfCircle(Part.Circle(Vector(-31.6, 29.1, 0), Vector(0, 0, 1), 2.5), math.radians(90), math.radians(180)), False)
sketch6.addGeometry(Part.LineSegment(Vector(-34.1, 29.1, 0), Vector(-34.1, -29.1, 0)), False)
sketch6.addGeometry(Part.ArcOfCircle(Part.Circle(Vector(-31.6, -29.1, 0), Vector(0, 0, 1), 2.5), math.radians(180), math.radians(270)), False)
sketch6.addGeometry(Part.LineSegment(Vector(-31.6, -31.6, 0), Vector(31.6, -31.6, 0)), False)
sketch6.addGeometry(Part.ArcOfCircle(Part.Circle(Vector(31.6, -29.1, 0), Vector(0, 0, 1), 2.5), math.radians(-90), math.radians(0)), False)
sketch6.addConstraint(Sketcher.Constraint("Tangent", 0, 2, 1, 1))
sketch6.addConstraint(Sketcher.Constraint("Tangent", 1, 2, 2, 1))
sketch6.addConstraint(Sketcher.Constraint("Tangent", 2, 2, 3, 1))
sketch6.addConstraint(Sketcher.Constraint("Tangent", 3, 2, 4, 1))
sketch6.addConstraint(Sketcher.Constraint("Tangent", 4, 2, 5, 1))
sketch6.addConstraint(Sketcher.Constraint("Tangent", 5, 2, 6, 1))
sketch6.addConstraint(Sketcher.Constraint("Tangent", 6, 2, 7, 1))
sketch6.addConstraint(Sketcher.Constraint("Tangent", 7, 2, 0, 1))
sketch6.addConstraint(Sketcher.Constraint("Vertical", 0))
sketch6.addConstraint(Sketcher.Constraint("Horizontal", 2))
sketch6.addConstraint(Sketcher.Constraint("Vertical", 4))
sketch6.addConstraint(Sketcher.Constraint("Horizontal", 6))
sketch6.addConstraint(Sketcher.Constraint("Equal", 1, 3))
sketch6.addConstraint(Sketcher.Constraint("Equal", 3, 5))
sketch6.addConstraint(Sketcher.Constraint("Equal", 5, 7))
sketch6.addConstraint(Sketcher.Constraint("Symmetric", 1, 3, 5, 3, -1, 1))
sketch6.addConstraint(Sketcher.Constraint("Radius", 1, Q("2.5 mm")))
sketch6.addConstraint(Sketcher.Constraint("DistanceX", 2, 2, 2, 1, Q("63.2 mm")))
sketch6.addConstraint(Sketcher.Constraint("DistanceY", 0, 1, 0, 2, Q("58.2 mm")))
sketch6.setExpression("Constraints[16]", "Params.sketch6_radius")
sketch6.setExpression("Constraints[17]", "Params.sketch6_width")
sketch6.setExpression("Constraints[18]", "Params.sketch6_height")
pocket3 = body.newObject("PartDesign::Pocket", "Pocket002")
pocket3.Profile = sketch6
pocket3.setExpression("Length", "Params.pocket3_length")

sketch7 = body.newObject("Sketcher::SketchObject", "Sketch006")
sketch7.AttachmentSupport = (doc.getObject("XZ_Plane"), [""])
sketch7.MapMode = "FlatFace"
sketch7.addGeometry(Part.ArcOfCircle(Part.Circle(Vector(25.4, -22.9, 0), Vector(0, 0, 1), 3.3), math.radians(-78), math.radians(-12)), False)
sketch7.addGeometry(Part.LineSegment(Vector(28.6, -23.6, 0), Vector(29.5, -19.6, 0)), False)
sketch7.addGeometry(Part.LineSegment(Vector(29.5, -19.6, 0), Vector(25.2, -19.6, 0)), False)
sketch7.addGeometry(Part.ArcOfCircle(Part.Circle(Vector(25.2, -22.7, 0), Vector(0, 0, 1), 3.2), math.radians(90), math.radians(180)), False)
sketch7.addGeometry(Part.LineSegment(Vector(22.1, -22.8, 0), Vector(22.1, -27, 0)), False)
sketch7.addGeometry(Part.LineSegment(Vector(22.1, -27, 0), Vector(26.1, -26.1, 0)), False)
sketch7.addGeometry(Part.Circle(Vector(25.2, -22.8, 0), Vector(0, 0, 1), 1.7), False)
sketch7.addGeometry(Part.LineSegment(Vector(-29.5, -19.6, 0), Vector(-28.6, -23.6, 0)), False)
sketch7.addGeometry(Part.ArcOfCircle(Part.Circle(Vector(-25.4, -22.9, 0), Vector(0, 0, 1), 3.3), math.radians(-168), math.radians(-102)), False)
sketch7.addGeometry(Part.LineSegment(Vector(-26.1, -26.1, 0), Vector(-22.1, -27, 0)), False)
sketch7.addGeometry(Part.LineSegment(Vector(-22.1, -27, 0), Vector(-22.1, -22.8, 0)), False)
sketch7.addGeometry(Part.ArcOfCircle(Part.Circle(Vector(-25.2, -22.7, 0), Vector(0, 0, 1), 3.2), math.radians(0), math.radians(90)), False)
sketch7.addGeometry(Part.LineSegment(Vector(-25.2, -19.6, 0), Vector(-29.5, -19.6, 0)), False)
sketch7.addGeometry(Part.Circle(Vector(-25.2, -22.8, 0), Vector(0, 0, 1), 1.7), False)
sketch7.addGeometry(Part.ArcOfCircle(Part.Circle(Vector(-25.4, 22.9, 0), Vector(0, 0, 1), 3.3), math.radians(102), math.radians(168)), False)
sketch7.addGeometry(Part.LineSegment(Vector(-28.6, 23.6, 0), Vector(-29.5, 19.6, 0)), False)
sketch7.addGeometry(Part.LineSegment(Vector(-29.5, 19.6, 0), Vector(-25.2, 19.6, 0)), False)
sketch7.addGeometry(Part.ArcOfCircle(Part.Circle(Vector(-25.2, 22.7, 0), Vector(0, 0, 1), 3.2), math.radians(-90), math.radians(0)), False)
sketch7.addGeometry(Part.LineSegment(Vector(-22.1, 22.8, 0), Vector(-22.1, 27, 0)), False)
sketch7.addGeometry(Part.LineSegment(Vector(-22.1, 27, 0), Vector(-26.1, 26.1, 0)), False)
sketch7.addGeometry(Part.Circle(Vector(-25.2, 22.8, 0), Vector(0, 0, 1), 1.7), False)
sketch7.addGeometry(Part.LineSegment(Vector(29.5, 19.6, 0), Vector(28.6, 23.6, 0)), False)
sketch7.addGeometry(Part.ArcOfCircle(Part.Circle(Vector(25.4, 22.9, 0), Vector(0, 0, 1), 3.3), math.radians(12), math.radians(78)), False)
sketch7.addGeometry(Part.LineSegment(Vector(26.1, 26.1, 0), Vector(22.1, 27, 0)), False)
sketch7.addGeometry(Part.LineSegment(Vector(22.1, 27, 0), Vector(22.1, 22.8, 0)), False)
sketch7.addGeometry(Part.ArcOfCircle(Part.Circle(Vector(25.2, 22.7, 0), Vector(0, 0, 1), 3.2), math.radians(180), math.radians(270)), False)
sketch7.addGeometry(Part.LineSegment(Vector(25.2, 19.6, 0), Vector(29.5, 19.6, 0)), False)
sketch7.addGeometry(Part.Circle(Vector(25.2, 22.8, 0), Vector(0, 0, 1), 1.7), False)
sketch7.addConstraint(Sketcher.Constraint("Tangent", 0, 2, 1, 1))
sketch7.addConstraint(Sketcher.Constraint("Coincident", 1, 2, 2, 1))
sketch7.addConstraint(Sketcher.Constraint("Tangent", 2, 2, 3, 1))
sketch7.addConstraint(Sketcher.Constraint("Tangent", 3, 2, 4, 1))
sketch7.addConstraint(Sketcher.Constraint("Coincident", 4, 2, 5, 1))
sketch7.addConstraint(Sketcher.Constraint("Tangent", 5, 2, 0, 1))
sketch7.addConstraint(Sketcher.Constraint("Tangent", 7, 2, 8, 1))
sketch7.addConstraint(Sketcher.Constraint("Tangent", 8, 2, 9, 1))
sketch7.addConstraint(Sketcher.Constraint("Coincident", 9, 2, 10, 1))
sketch7.addConstraint(Sketcher.Constraint("Tangent", 10, 2, 11, 1))
sketch7.addConstraint(Sketcher.Constraint("Tangent", 11, 2, 12, 1))
sketch7.addConstraint(Sketcher.Constraint("Coincident", 12, 2, 7, 1))
sketch7.addConstraint(Sketcher.Constraint("Tangent", 14, 2, 15, 1))
sketch7.addConstraint(Sketcher.Constraint("Coincident", 15, 2, 16, 1))
sketch7.addConstraint(Sketcher.Constraint("Tangent", 16, 2, 17, 1))
sketch7.addConstraint(Sketcher.Constraint("Tangent", 17, 2, 18, 1))
sketch7.addConstraint(Sketcher.Constraint("Coincident", 18, 2, 19, 1))
sketch7.addConstraint(Sketcher.Constraint("Tangent", 19, 2, 14, 1))
sketch7.addConstraint(Sketcher.Constraint("Tangent", 21, 2, 22, 1))
sketch7.addConstraint(Sketcher.Constraint("Tangent", 22, 2, 23, 1))
sketch7.addConstraint(Sketcher.Constraint("Coincident", 23, 2, 24, 1))
sketch7.addConstraint(Sketcher.Constraint("Tangent", 24, 2, 25, 1))
sketch7.addConstraint(Sketcher.Constraint("Tangent", 25, 2, 26, 1))
sketch7.addConstraint(Sketcher.Constraint("Coincident", 26, 2, 21, 1))
sketch7.addConstraint(Sketcher.Constraint("Horizontal", 2))
sketch7.addConstraint(Sketcher.Constraint("Vertical", 4))
sketch7.addConstraint(Sketcher.Constraint("Vertical", 10))
sketch7.addConstraint(Sketcher.Constraint("Horizontal", 12))
sketch7.addConstraint(Sketcher.Constraint("Horizontal", 16))
sketch7.addConstraint(Sketcher.Constraint("Vertical", 18))
sketch7.addConstraint(Sketcher.Constraint("Vertical", 24))
sketch7.addConstraint(Sketcher.Constraint("Horizontal", 26))
sketch7.addConstraint(Sketcher.Constraint("Coincident", 6, 3, 3, 3))
sketch7.addConstraint(Sketcher.Constraint("Coincident", 13, 3, 11, 3))
sketch7.addConstraint(Sketcher.Constraint("Coincident", 20, 3, 17, 3))
sketch7.addConstraint(Sketcher.Constraint("Coincident", 27, 3, 25, 3))
sketch7.addConstraint(Sketcher.Constraint("Equal", 0, 8))
sketch7.addConstraint(Sketcher.Constraint("Equal", 3, 11))
sketch7.addConstraint(Sketcher.Constraint("Equal", 6, 13))
sketch7.addConstraint(Sketcher.Constraint("Equal", 8, 14))
sketch7.addConstraint(Sketcher.Constraint("Equal", 11, 17))
sketch7.addConstraint(Sketcher.Constraint("Equal", 13, 20))
sketch7.addConstraint(Sketcher.Constraint("Equal", 14, 22))
sketch7.addConstraint(Sketcher.Constraint("Equal", 17, 25))
sketch7.addConstraint(Sketcher.Constraint("Equal", 20, 27))
sketch7.addConstraint(Sketcher.Constraint("Symmetric", 0, 3, 14, 3, -1, 1))
sketch7.addConstraint(Sketcher.Constraint("Symmetric", 3, 3, 17, 3, -1, 1))
sketch7.addConstraint(Sketcher.Constraint("Symmetric", 8, 3, 22, 3, -1, 1))
sketch7.addConstraint(Sketcher.Constraint("Symmetric", 11, 3, 25, 3, -1, 1))
sketch7.addConstraint(Sketcher.Constraint("Symmetric", 0, 3, 8, 3, -2))
sketch7.addConstraint(Sketcher.Constraint("Symmetric", 3, 3, 11, 3, -2))
sketch7.addConstraint(Sketcher.Constraint("Perpendicular", 5, 7))
sketch7.addConstraint(Sketcher.Constraint("Perpendicular", 1, 9))
sketch7.addConstraint(Sketcher.Constraint("Perpendicular", 9, 15))
sketch7.addConstraint(Sketcher.Constraint("Perpendicular", 7, 19))
sketch7.addConstraint(Sketcher.Constraint("Perpendicular", 19, 21))
sketch7.addConstraint(Sketcher.Constraint("Perpendicular", 15, 23))
sketch7.addConstraint(Sketcher.Constraint("Horizontal", 0, 2, 7, 2))
sketch7.addConstraint(Sketcher.Constraint("Equal", 26, 4))
sketch7.addConstraint(Sketcher.Constraint("Diameter", 6, Q("3.4 mm")))
sketch7.addConstraint(Sketcher.Constraint("Radius", 3, Q("3.2 mm")))
sketch7.addConstraint(Sketcher.Constraint("Radius", 0, Q("3.35 mm")))
sketch7.addConstraint(Sketcher.Constraint("DistanceY", 4, 2, -1, 1, Q("27 mm")))
sketch7.addConstraint(Sketcher.Constraint("DistanceX", 2, 2, 2, 1, Q("4.25 mm")))
sketch7.addConstraint(Sketcher.Constraint("DistanceX", -1, 1, 1, 2, Q("29.5 mm")))
sketch7.addConstraint(Sketcher.Constraint("DistanceX", 0, 3, 0, 2, Q("3.2746 mm")))
sketch7.setExpression("Constraints[59]", "Params.sketch7_diameter")
sketch7.setExpression("Constraints[60]", "Params.sketch7_radius")
sketch7.setExpression("Constraints[61]", "Params.sketch7_radius2")
sketch7.setExpression("Constraints[63]", "Params.sketch7_width")
pocket4 = body.newObject("PartDesign::Pocket", "Pocket003")
pocket4.Profile = sketch7
pocket4.setExpression("Length", "Params.pocket4_length")

doc.recompute()
